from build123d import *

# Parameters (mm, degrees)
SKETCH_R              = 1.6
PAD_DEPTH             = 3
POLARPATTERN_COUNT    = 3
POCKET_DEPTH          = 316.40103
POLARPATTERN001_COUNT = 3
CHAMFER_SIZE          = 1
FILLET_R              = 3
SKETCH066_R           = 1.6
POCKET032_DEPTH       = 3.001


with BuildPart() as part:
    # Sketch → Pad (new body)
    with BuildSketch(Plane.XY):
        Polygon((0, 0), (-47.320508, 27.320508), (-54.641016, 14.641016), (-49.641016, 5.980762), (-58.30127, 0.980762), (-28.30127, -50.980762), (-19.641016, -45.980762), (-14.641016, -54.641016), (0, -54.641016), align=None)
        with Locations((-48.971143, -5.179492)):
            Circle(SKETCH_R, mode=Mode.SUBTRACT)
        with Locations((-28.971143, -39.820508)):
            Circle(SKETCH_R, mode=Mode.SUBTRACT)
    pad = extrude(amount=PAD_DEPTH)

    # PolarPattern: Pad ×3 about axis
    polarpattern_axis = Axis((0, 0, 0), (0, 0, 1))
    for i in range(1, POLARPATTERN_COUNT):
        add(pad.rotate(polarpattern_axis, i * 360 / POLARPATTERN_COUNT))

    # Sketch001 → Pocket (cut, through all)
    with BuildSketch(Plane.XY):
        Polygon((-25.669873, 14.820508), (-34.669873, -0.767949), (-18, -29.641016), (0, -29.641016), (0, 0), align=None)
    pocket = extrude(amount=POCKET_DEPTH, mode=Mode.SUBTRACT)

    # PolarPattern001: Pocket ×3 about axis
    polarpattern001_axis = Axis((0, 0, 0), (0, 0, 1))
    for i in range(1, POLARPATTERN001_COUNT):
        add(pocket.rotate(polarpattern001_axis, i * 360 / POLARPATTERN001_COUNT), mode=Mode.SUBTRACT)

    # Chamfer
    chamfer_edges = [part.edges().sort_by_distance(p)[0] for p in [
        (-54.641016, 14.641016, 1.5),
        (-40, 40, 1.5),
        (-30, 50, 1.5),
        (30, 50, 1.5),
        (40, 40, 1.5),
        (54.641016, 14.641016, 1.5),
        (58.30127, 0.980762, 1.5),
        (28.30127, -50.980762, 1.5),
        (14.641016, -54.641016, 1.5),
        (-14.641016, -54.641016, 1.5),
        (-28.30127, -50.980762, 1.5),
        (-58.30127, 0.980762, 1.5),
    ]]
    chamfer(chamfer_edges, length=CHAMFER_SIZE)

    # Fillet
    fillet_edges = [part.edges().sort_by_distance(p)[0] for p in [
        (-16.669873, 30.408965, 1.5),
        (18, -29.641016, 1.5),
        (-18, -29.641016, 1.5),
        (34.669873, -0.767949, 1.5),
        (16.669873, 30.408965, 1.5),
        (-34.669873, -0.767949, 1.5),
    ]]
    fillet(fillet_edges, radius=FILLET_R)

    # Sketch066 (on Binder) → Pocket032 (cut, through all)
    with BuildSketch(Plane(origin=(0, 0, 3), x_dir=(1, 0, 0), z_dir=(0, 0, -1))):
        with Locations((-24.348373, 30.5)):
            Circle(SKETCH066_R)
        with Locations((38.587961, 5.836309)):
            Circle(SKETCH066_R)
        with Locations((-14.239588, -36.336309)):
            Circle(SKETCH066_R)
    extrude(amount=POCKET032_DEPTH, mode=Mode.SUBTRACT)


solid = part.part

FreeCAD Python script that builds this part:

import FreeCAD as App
import Part
import Sketcher
from FreeCAD import Vector
Q = App.Units.Quantity


def edges_at(feature, points):
    """Names of the edges that pass closest to the given points."""
    edges = feature.Shape.Edges
    near = lambda p: min(range(len(edges)), key=lambda i: edges[i].distToShape(Part.Vertex(*p))[0])
    return sorted({f"Edge{near(p) + 1}" for p in points})


def add_polygon(sketch, points):
    """Adds a closed chain of lines whose ends are joined by coincident constraints."""
    first, n = sketch.GeometryCount, len(points)
    for a, b in zip(points, points[1:] + points[:1]):
        sketch.addGeometry(Part.LineSegment(App.Vector(*a, 0), App.Vector(*b, 0)), False)
    for i in range(n):
        sketch.addConstraint(Sketcher.Constraint("Coincident", first + i, 2, first + (i + 1) % n, 1))

doc = App.newDocument("Part")
body = doc.addObject("PartDesign::Body", "Body")

# Sketch on XY plane
sketch1 = body.newObject("Sketcher::SketchObject", "Sketch")
sketch1.AttachmentSupport = (doc.getObject("XY_Plane"), [""])
sketch1.MapMode = "FlatFace"
add_polygon(sketch1, [(0, 0), (-47.3, 27.3), (-54.6, 14.6), (-49.6, 6), (-58.3, 1), (-28.3, -51), (-19.6, -46), (-14.6, -54.6), (0, -54.6)])  # lines 0-8
sketch1.addGeometry(Part.Circle(Vector(-29, -39.8, 0), Vector(0, 0, 1), 1.6), False)  # 9
sketch1.addGeometry(Part.Circle(Vector(-49, -5.2, 0), Vector(0, 0, 1), 1.6), False)  # 10
sketch1.addConstraint(Sketcher.Constraint("Horizontal", 7))
sketch1.addConstraint(Sketcher.Constraint("Vertical", 8))
sketch1.addConstraint(Sketcher.Constraint("Coincident", 8, 2, -1, 1))
sketch1.addConstraint(Sketcher.Constraint("Equal", 9, 10))
sketch1.addConstraint(Sketcher.Constraint("Perpendicular", 0, 1))
sketch1.addConstraint(Sketcher.Constraint("Perpendicular", 2, 3))
sketch1.addConstraint(Sketcher.Constraint("Perpendicular", 3, 4))
sketch1.addConstraint(Sketcher.Constraint("Perpendicular", 4, 5))
sketch1.addConstraint(Sketcher.Constraint("Perpendicular", 5, 6))
sketch1.addConstraint(Sketcher.Constraint("Equal", 2, 3))
sketch1.addConstraint(Sketcher.Constraint("Equal", 3, 5))
sketch1.addConstraint(Sketcher.Constraint("Equal", 5, 6))
sketch1.addConstraint(Sketcher.Constraint("Diameter", 9, Q("3.2 mm")))
sketch1.addConstraint(Sketcher.Constraint("Angle", 0, Q("150 deg")))
sketch1.addConstraint(Sketcher.Constraint("Angle", 2, Q("-60 deg")))
sketch1.addConstraint(Sketcher.Constraint("Distance", 2, Q("10 mm")))
sketch1.addConstraint(Sketcher.Constraint("Distance", 4, Q("60 mm")))
sketch1.addConstraint(Sketcher.Constraint("DistanceX", 10, 3, 9, 3, Q("20 mm")))
sketch1.addConstraint(Sketcher.Constraint("DistanceY", 10, 3, 0, 2, Q("32.5 mm")))
sketch1.addConstraint(Sketcher.Constraint("DistanceX", 7, 1, 7, 2, Q("14.641016 mm")))
sketch1.addConstraint(Sketcher.Constraint("DistanceY", 8, 1, 8, 2, Q("54.641016 mm")))
sketch1.addConstraint(Sketcher.Constraint("DistanceY", 9, 3, 2, 2, Q("45.80127 mm")))
sketch1.addConstraint(Sketcher.Constraint("DistanceX", 9, 3, -1, 1, Q("28.971143 mm")))
pad1 = body.newObject("PartDesign::Pad", "Pad")
pad1.Profile = sketch1
pad1.Length = 3
doc.recompute()

polarpattern = body.newObject("PartDesign::PolarPattern", "PolarPattern")
polarpattern.Originals = [pad1]
polarpattern.Axis = (doc.getObject("Z_Axis"), [""])
polarpattern.Angle = 360
polarpattern.Occurrences = 3
body.Tip = polarpattern

# Sketch on XY plane
sketch2 = body.newObject("Sketcher::SketchObject", "Sketch001")
sketch2.AttachmentSupport = (doc.getObject("XY_Plane"), [""])
sketch2.MapMode = "FlatFace"
add_polygon(sketch2, [(-26, 15), (-35, -1), (-18, -30), (0, -30), (0, 0)])  # lines 0-4
sketch2.addConstraint(Sketcher.Constraint("Horizontal", 2))
sketch2.addConstraint(Sketcher.Constraint("Vertical", 3))
sketch2.addConstraint(Sketcher.Constraint("Coincident", 3, 2, -1, 1))
sketch2.addConstraint(Sketcher.Constraint("Perpendicular", 0, 4))
sketch2.addConstraint(Sketcher.Constraint("DistanceX", 2, 1, 2, 2, Q("18 mm")))
sketch2.addConstraint(Sketcher.Constraint("Angle", 0, Q("-120 deg")))
sketch2.addConstraint(Sketcher.Constraint("Angle", 1, Q("-60 deg")))
sketch2.addConstraint(Sketcher.Constraint("Distance", 0, Q("18 mm")))
sketch2.addConstraint(Sketcher.Constraint("DistanceY", 3, 1, 3, 2, Q("29.641016 mm")))
pocket1 = body.newObject("PartDesign::Pocket", "Pocket")
pocket1.Profile = sketch2
pocket1.Type = "ThroughAll"
pocket1.Reversed = True
doc.recompute()

polarpattern2 = body.newObject("PartDesign::PolarPattern", "PolarPattern001")
polarpattern2.Originals = [pocket1]
polarpattern2.Axis = (doc.getObject("Z_Axis"), [""])
polarpattern2.Angle = 360
polarpattern2.Occurrences = 3
body.Tip = polarpattern2
doc.recompute()

chamfer = body.newObject("PartDesign::Chamfer", "Chamfer")
chamfer.Base = (polarpattern2, edges_at(polarpattern2, [
    (-54.641, 14.641, 1.5),
    (-40, 40, 1.5),
    (-30, 50, 1.5),
    (30, 50, 1.5),
    (40, 40, 1.5),
    (54.641, 14.641, 1.5),
    (58.301, 0.981, 1.5),
    (28.301, -50.981, 1.5),
    (14.641, -54.641, 1.5),
    (-14.641, -54.641, 1.5),
    (-28.301, -50.981, 1.5),
    (-58.301, 0.981, 1.5),
]))
chamfer.Size = 1
doc.recompute()

fillet = body.newObject("PartDesign::Fillet", "Fillet")
fillet.Base = (chamfer, edges_at(chamfer, [
    (-16.67, 30.409, 1.5),
    (18, -29.641, 1.5),
    (-18, -29.641, 1.5),
    (34.67, -0.768, 1.5),
    (16.67, 30.409, 1.5),
    (-34.67, -0.768, 1.5),
]))
fillet.Radius = 3

# Sketch on XY plane
sketch3 = body.newObject("Sketcher::SketchObject", "Sketch002")
sketch3.AttachmentSupport = (doc.getObject("XY_Plane"), [""])
sketch3.MapMode = "FlatFace"
sketch3.AttachmentOffset = App.Placement(Vector(0, 0, 3), App.Rotation())
sketch3.addGeometry(Part.Circle(Vector(-24.3, -30.5, 0), Vector(0, 0, 1), 1.6), False)
sketch3.addGeometry(Part.Circle(Vector(38.6, -5.8, 0), Vector(0, 0, 1), 1.6), False)
sketch3.addGeometry(Part.Circle(Vector(-14.2, 36.3, 0), Vector(0, 0, 1), 1.6), False)
sketch3.addConstraint(Sketcher.Constraint("Equal", 0, 1))
sketch3.addConstraint(Sketcher.Constraint("Equal", 1, 2))
sketch3.addConstraint(Sketcher.Constraint("Diameter", 0, Q("3.2 mm")))
sketch3.addConstraint(Sketcher.Constraint("DistanceY", 0, 3, -1, 1, Q("30.5 mm")))
sketch3.addConstraint(Sketcher.Constraint("DistanceX", -1, 1, 1, 3, Q("38.587961 mm")))
sketch3.addConstraint(Sketcher.Constraint("DistanceY", 1, 3, -1, 1, Q("5.836309 mm")))
sketch3.addConstraint(Sketcher.Constraint("DistanceY", -1, 1, 2, 3, Q("36.336309 mm")))
sketch3.addConstraint(Sketcher.Constraint("DistanceX", 2, 3, 1, 3, Q("52.827549 mm")))
sketch3.addConstraint(Sketcher.Constraint("DistanceX", 0, 3, -1, 1, Q("24.348373 mm")))
pocket2 = body.newObject("PartDesign::Pocket", "Pocket001")
pocket2.Profile = sketch3
pocket2.Type = "ThroughAll"

doc.recompute()
